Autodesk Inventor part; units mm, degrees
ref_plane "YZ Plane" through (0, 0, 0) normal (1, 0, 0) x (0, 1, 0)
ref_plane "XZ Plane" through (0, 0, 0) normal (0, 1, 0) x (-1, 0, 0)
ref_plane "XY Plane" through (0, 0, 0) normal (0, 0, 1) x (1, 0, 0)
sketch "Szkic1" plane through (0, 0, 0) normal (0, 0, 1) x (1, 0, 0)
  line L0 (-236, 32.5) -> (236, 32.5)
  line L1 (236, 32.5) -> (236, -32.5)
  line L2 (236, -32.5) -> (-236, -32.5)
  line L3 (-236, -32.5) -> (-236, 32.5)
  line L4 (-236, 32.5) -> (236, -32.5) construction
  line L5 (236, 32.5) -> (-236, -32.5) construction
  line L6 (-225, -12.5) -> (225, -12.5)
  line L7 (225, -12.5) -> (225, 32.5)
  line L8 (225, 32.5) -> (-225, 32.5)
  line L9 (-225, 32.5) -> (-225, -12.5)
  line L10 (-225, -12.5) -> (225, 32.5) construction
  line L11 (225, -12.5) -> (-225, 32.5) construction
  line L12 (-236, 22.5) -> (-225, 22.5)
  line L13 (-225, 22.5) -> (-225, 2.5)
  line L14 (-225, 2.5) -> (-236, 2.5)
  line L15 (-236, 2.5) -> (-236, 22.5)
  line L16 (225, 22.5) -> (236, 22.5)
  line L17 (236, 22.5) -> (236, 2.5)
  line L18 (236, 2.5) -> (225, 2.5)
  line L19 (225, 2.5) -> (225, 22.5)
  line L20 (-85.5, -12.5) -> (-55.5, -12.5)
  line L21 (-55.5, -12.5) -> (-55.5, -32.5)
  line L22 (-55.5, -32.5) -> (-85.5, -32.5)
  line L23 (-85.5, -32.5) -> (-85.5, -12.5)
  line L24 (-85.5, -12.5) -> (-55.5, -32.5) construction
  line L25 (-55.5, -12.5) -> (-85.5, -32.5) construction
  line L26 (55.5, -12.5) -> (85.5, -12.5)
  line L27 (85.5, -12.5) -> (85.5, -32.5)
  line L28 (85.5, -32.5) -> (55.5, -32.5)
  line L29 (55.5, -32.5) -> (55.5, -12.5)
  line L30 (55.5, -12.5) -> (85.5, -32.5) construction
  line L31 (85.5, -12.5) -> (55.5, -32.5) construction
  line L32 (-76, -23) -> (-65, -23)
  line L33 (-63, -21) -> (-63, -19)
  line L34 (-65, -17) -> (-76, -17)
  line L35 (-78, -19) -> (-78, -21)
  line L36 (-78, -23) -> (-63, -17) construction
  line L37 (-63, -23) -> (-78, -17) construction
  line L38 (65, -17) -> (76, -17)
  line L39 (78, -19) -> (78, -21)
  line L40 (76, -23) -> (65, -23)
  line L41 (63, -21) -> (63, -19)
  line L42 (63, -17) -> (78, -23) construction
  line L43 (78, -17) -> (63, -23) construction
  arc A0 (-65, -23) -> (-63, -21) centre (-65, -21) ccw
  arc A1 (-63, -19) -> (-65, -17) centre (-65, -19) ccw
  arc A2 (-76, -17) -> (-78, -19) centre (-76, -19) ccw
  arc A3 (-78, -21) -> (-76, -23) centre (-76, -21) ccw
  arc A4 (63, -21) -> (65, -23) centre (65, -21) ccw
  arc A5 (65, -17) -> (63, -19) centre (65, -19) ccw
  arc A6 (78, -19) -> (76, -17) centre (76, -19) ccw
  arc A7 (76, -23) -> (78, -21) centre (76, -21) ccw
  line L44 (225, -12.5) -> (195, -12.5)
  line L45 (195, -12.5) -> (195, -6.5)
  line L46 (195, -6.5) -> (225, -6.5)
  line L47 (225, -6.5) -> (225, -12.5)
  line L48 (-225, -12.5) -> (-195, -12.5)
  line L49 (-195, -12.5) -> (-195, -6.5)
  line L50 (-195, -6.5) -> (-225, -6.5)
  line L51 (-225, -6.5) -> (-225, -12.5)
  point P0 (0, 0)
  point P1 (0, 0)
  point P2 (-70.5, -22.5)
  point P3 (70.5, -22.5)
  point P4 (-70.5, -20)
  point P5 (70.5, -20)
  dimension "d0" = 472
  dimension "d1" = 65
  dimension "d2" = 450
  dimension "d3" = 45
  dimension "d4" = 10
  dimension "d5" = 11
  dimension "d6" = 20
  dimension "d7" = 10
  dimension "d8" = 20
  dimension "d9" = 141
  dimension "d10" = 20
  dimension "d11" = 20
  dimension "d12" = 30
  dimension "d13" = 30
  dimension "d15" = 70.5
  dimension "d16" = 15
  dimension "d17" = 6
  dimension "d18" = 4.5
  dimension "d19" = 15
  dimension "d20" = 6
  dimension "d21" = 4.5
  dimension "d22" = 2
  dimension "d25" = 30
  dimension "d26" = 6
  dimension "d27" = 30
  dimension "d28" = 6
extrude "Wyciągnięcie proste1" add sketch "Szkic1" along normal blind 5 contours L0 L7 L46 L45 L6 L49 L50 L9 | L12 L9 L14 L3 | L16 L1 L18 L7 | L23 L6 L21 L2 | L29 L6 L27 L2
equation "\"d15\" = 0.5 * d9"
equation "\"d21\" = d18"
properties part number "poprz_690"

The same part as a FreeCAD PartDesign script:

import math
import FreeCAD as App
import Part
import Sketcher

V = App.Vector
Q = App.Units.Quantity


def add_polygon(sketch, points):
    """Adds a closed chain of lines whose ends are joined by coincident constraints."""
    first, n = sketch.GeometryCount, len(points)
    for a, b in zip(points, points[1:] + points[:1]):
        sketch.addGeometry(Part.LineSegment(App.Vector(*a, 0), App.Vector(*b, 0)), False)
    for i in range(n):
        sketch.addConstraint(Sketcher.Constraint("Coincident", first + i, 2, first + (i + 1) % n, 1))

doc = App.newDocument("Part")
body = doc.addObject("PartDesign::Body", "Body")

sketch1 = body.newObject("Sketcher::SketchObject", "Sketch")
sketch1.AttachmentSupport = (doc.getObject("XY_Plane"), [""])
sketch1.MapMode = "FlatFace"
add_polygon(sketch1, [(225, 32.5), (-225, 32.5), (-225, 22.5), (-236, 22.5), (-236, 2.5), (-225, 2.5), (-225, -6.5), (-195, -6.5), (-195, -12.5), (-85.5, -12.5), (-85.5, -32.5), (-55.5, -32.5), (-55.5, -12.5), (55.5, -12.5), (55.5, -32.5), (85.5, -32.5), (85.5, -12.5), (195, -12.5), (195, -6.5), (225, -6.5), (225, 2.5), (236, 2.5), (236, 22.5), (225, 22.5)])
sketch1.addGeometry(Part.LineSegment(V(65, -17, 0), V(76, -17, 0)), False)
sketch1.addGeometry(Part.ArcOfCircle(Part.Circle(V(76, -19, 0), V(0, 0, 1), 2), math.radians(0), math.radians(90)), False)
sketch1.addGeometry(Part.LineSegment(V(78, -19, 0), V(78, -21, 0)), False)
sketch1.addGeometry(Part.ArcOfCircle(Part.Circle(V(76, -21, 0), V(0, 0, 1), 2), math.radians(-90), math.radians(0)), False)
sketch1.addGeometry(Part.LineSegment(V(76, -23, 0), V(65, -23, 0)), False)
sketch1.addGeometry(Part.ArcOfCircle(Part.Circle(V(65, -21, 0), V(0, 0, 1), 2), math.radians(180), math.radians(270)), False)
sketch1.addGeometry(Part.LineSegment(V(63, -21, 0), V(63, -19, 0)), False)
sketch1.addGeometry(Part.ArcOfCircle(Part.Circle(V(65, -19, 0), V(0, 0, 1), 2), math.radians(90), math.radians(180)), False)
sketch1.addGeometry(Part.ArcOfCircle(Part.Circle(V(-76, -21, 0), V(0, 0, 1), 2), math.radians(180), math.radians(270)), False)
sketch1.addGeometry(Part.LineSegment(V(-78, -21, 0), V(-78, -19, 0)), False)
sketch1.addGeometry(Part.ArcOfCircle(Part.Circle(V(-76, -19, 0), V(0, 0, 1), 2), math.radians(90), math.radians(180)), False)
sketch1.addGeometry(Part.LineSegment(V(-76, -17, 0), V(-65, -17, 0)), False)
sketch1.addGeometry(Part.ArcOfCircle(Part.Circle(V(-65, -19, 0), V(0, 0, 1), 2), math.radians(0), math.radians(90)), False)
sketch1.addGeometry(Part.LineSegment(V(-63, -19, 0), V(-63, -21, 0)), False)
sketch1.addGeometry(Part.ArcOfCircle(Part.Circle(V(-65, -21, 0), V(0, 0, 1), 2), math.radians(-90), math.radians(0)), False)
sketch1.addGeometry(Part.LineSegment(V(-65, -23, 0), V(-76, -23, 0)), False)
sketch1.addConstraint(Sketcher.Constraint("Tangent", 24, 2, 25, 2))
sketch1.addConstraint(Sketcher.Constraint("Tangent", 25, 1, 26, 1))
sketch1.addConstraint(Sketcher.Constraint("Tangent", 26, 2, 27, 2))
sketch1.addConstraint(Sketcher.Constraint("Tangent", 27, 1, 28, 1))
sketch1.addConstraint(Sketcher.Constraint("Tangent", 28, 2, 29, 2))
sketch1.addConstraint(Sketcher.Constraint("Tangent", 29, 1, 30, 1))
sketch1.addConstraint(Sketcher.Constraint("Tangent", 30, 2, 31, 2))
sketch1.addConstraint(Sketcher.Constraint("Tangent", 31, 1, 24, 1))
sketch1.addConstraint(Sketcher.Constraint("Tangent", 32, 1, 33, 1))
sketch1.addConstraint(Sketcher.Constraint("Tangent", 33, 2, 34, 2))
sketch1.addConstraint(Sketcher.Constraint("Tangent", 34, 1, 35, 1))
sketch1.addConstraint(Sketcher.Constraint("Tangent", 35, 2, 36, 2))
sketch1.addConstraint(Sketcher.Constraint("Tangent", 36, 1, 37, 1))
sketch1.addConstraint(Sketcher.Constraint("Tangent", 37, 2, 38, 2))
sketch1.addConstraint(Sketcher.Constraint("Tangent", 38, 1, 39, 1))
sketch1.addConstraint(Sketcher.Constraint("Tangent", 39, 2, 32, 2))
sketch1.addConstraint(Sketcher.Constraint("Horizontal", 0))
sketch1.addConstraint(Sketcher.Constraint("Vertical", 1))
sketch1.addConstraint(Sketcher.Constraint("Horizontal", 2))
sketch1.addConstraint(Sketcher.Constraint("Vertical", 3))
sketch1.addConstraint(Sketcher.Constraint("Horizontal", 4))
sketch1.addConstraint(Sketcher.Constraint("Vertical", 5))
sketch1.addConstraint(Sketcher.Constraint("Horizontal", 6))
sketch1.addConstraint(Sketcher.Constraint("Vertical", 7))
sketch1.addConstraint(Sketcher.Constraint("Horizontal", 8))
sketch1.addConstraint(Sketcher.Constraint("Vertical", 9))
sketch1.addConstraint(Sketcher.Constraint("Horizontal", 10))
sketch1.addConstraint(Sketcher.Constraint("Vertical", 11))
sketch1.addConstraint(Sketcher.Constraint("Horizontal", 12))
sketch1.addConstraint(Sketcher.Constraint("Vertical", 13))
sketch1.addConstraint(Sketcher.Constraint("Horizontal", 14))
sketch1.addConstraint(Sketcher.Constraint("Vertical", 15))
sketch1.addConstraint(Sketcher.Constraint("Horizontal", 16))
sketch1.addConstraint(Sketcher.Constraint("Vertical", 17))
sketch1.addConstraint(Sketcher.Constraint("Horizontal", 18))
sketch1.addConstraint(Sketcher.Constraint("Vertical", 19))
sketch1.addConstraint(Sketcher.Constraint("Horizontal", 20))
sketch1.addConstraint(Sketcher.Constraint("Vertical", 21))
sketch1.addConstraint(Sketcher.Constraint("Horizontal", 22))
sketch1.addConstraint(Sketcher.Constraint("Vertical", 23))
sketch1.addConstraint(Sketcher.Constraint("Horizontal", 24))
sketch1.addConstraint(Sketcher.Constraint("Vertical", 26))
sketch1.addConstraint(Sketcher.Constraint("Horizontal", 28))
sketch1.addConstraint(Sketcher.Constraint("Vertical", 30))
sketch1.addConstraint(Sketcher.Constraint("Vertical", 33))
sketch1.addConstraint(Sketcher.Constraint("Horizontal", 35))
sketch1.addConstraint(Sketcher.Constraint("Vertical", 37))
sketch1.addConstraint(Sketcher.Constraint("Horizontal", 39))
sketch1.addConstraint(Sketcher.Constraint("Equal", 25, 27))
sketch1.addConstraint(Sketcher.Constraint("Equal", 27, 29))
sketch1.addConstraint(Sketcher.Constraint("Equal", 29, 31))
sketch1.addConstraint(Sketcher.Constraint("Equal", 31, 32))
sketch1.addConstraint(Sketcher.Constraint("Equal", 32, 34))
sketch1.addConstraint(Sketcher.Constraint("Equal", 34, 36))
sketch1.addConstraint(Sketcher.Constraint("Equal", 36, 38))
sketch1.addConstraint(Sketcher.Constraint("Symmetric", 27, 3, 32, 3, -2))
sketch1.addConstraint(Sketcher.Constraint("Symmetric", 31, 3, 36, 3, -2))
sketch1.addConstraint(Sketcher.Constraint("Symmetric", 10, 2, 13, 2, -2))
sketch1.addConstraint(Sketcher.Constraint("Symmetric", 8, 2, 15, 2, -2))
sketch1.addConstraint(Sketcher.Constraint("Symmetric", 6, 2, 17, 2, -2))
sketch1.addConstraint(Sketcher.Constraint("Symmetric", 4, 2, 19, 2, -2))
sketch1.addConstraint(Sketcher.Constraint("Symmetric", 2, 2, 21, 2, -2))
sketch1.addConstraint(Sketcher.Constraint("Horizontal", 8, 2, 11, 2))
sketch1.addConstraint(Sketcher.Constraint("Vertical", 1, 2, 4, 2))
sketch1.addConstraint(Sketcher.Constraint("Vertical", 19, 2, 22, 2))
sketch1.addConstraint(Sketcher.Constraint("Equal", 6, 10))
sketch1.addConstraint(Sketcher.Constraint("Equal", 22, 24))
sketch1.addConstraint(Sketcher.Constraint("Equal", 3, 9))
sketch1.addConstraint(Sketcher.Constraint("Radius", 25, Q("2 mm")))
sketch1.addConstraint(Sketcher.Constraint("DistanceX", 0, 2, 0, 1, Q("450 mm")))
sketch1.addConstraint(Sketcher.Constraint("DistanceX", 2, 2, 2, 1, Q("11 mm")))
sketch1.addConstraint(Sketcher.Constraint("DistanceX", 6, 1, 6, 2, Q("30 mm")))
sketch1.addConstraint(Sketcher.Constraint("DistanceY", 1, 2, 1, 1, Q("10 mm")))
sketch1.addConstraint(Sketcher.Constraint("DistanceY", 3, 2, 3, 1, Q("20 mm")))
sketch1.addConstraint(Sketcher.Constraint("DistanceY", 7, 2, 7, 1, Q("6 mm")))
sketch1.addConstraint(Sketcher.Constraint("DistanceY", 26, 2, 26, 1, Q("2 mm")))
sketch1.addConstraint(Sketcher.Constraint("DistanceX", -1, 1, 29, 3, Q("65 mm")))
sketch1.addConstraint(Sketcher.Constraint("DistanceY", 7, 2, 4, 2, Q("15 mm")))
sketch1.addConstraint(Sketcher.Constraint("DistanceY", 24, 2, 15, 2, Q("4.5 mm")))
sketch1.addConstraint(Sketcher.Constraint("DistanceX", 12, 1, 12, 2, Q("111 mm")))
sketch1.addConstraint(Sketcher.Constraint("DistanceY", 25, 3, -1, 1, Q("19 mm")))
pad1 = body.newObject("PartDesign::Pad", "Pad")
pad1.Profile = sketch1
pad1.Length = 5

doc.recompute()
